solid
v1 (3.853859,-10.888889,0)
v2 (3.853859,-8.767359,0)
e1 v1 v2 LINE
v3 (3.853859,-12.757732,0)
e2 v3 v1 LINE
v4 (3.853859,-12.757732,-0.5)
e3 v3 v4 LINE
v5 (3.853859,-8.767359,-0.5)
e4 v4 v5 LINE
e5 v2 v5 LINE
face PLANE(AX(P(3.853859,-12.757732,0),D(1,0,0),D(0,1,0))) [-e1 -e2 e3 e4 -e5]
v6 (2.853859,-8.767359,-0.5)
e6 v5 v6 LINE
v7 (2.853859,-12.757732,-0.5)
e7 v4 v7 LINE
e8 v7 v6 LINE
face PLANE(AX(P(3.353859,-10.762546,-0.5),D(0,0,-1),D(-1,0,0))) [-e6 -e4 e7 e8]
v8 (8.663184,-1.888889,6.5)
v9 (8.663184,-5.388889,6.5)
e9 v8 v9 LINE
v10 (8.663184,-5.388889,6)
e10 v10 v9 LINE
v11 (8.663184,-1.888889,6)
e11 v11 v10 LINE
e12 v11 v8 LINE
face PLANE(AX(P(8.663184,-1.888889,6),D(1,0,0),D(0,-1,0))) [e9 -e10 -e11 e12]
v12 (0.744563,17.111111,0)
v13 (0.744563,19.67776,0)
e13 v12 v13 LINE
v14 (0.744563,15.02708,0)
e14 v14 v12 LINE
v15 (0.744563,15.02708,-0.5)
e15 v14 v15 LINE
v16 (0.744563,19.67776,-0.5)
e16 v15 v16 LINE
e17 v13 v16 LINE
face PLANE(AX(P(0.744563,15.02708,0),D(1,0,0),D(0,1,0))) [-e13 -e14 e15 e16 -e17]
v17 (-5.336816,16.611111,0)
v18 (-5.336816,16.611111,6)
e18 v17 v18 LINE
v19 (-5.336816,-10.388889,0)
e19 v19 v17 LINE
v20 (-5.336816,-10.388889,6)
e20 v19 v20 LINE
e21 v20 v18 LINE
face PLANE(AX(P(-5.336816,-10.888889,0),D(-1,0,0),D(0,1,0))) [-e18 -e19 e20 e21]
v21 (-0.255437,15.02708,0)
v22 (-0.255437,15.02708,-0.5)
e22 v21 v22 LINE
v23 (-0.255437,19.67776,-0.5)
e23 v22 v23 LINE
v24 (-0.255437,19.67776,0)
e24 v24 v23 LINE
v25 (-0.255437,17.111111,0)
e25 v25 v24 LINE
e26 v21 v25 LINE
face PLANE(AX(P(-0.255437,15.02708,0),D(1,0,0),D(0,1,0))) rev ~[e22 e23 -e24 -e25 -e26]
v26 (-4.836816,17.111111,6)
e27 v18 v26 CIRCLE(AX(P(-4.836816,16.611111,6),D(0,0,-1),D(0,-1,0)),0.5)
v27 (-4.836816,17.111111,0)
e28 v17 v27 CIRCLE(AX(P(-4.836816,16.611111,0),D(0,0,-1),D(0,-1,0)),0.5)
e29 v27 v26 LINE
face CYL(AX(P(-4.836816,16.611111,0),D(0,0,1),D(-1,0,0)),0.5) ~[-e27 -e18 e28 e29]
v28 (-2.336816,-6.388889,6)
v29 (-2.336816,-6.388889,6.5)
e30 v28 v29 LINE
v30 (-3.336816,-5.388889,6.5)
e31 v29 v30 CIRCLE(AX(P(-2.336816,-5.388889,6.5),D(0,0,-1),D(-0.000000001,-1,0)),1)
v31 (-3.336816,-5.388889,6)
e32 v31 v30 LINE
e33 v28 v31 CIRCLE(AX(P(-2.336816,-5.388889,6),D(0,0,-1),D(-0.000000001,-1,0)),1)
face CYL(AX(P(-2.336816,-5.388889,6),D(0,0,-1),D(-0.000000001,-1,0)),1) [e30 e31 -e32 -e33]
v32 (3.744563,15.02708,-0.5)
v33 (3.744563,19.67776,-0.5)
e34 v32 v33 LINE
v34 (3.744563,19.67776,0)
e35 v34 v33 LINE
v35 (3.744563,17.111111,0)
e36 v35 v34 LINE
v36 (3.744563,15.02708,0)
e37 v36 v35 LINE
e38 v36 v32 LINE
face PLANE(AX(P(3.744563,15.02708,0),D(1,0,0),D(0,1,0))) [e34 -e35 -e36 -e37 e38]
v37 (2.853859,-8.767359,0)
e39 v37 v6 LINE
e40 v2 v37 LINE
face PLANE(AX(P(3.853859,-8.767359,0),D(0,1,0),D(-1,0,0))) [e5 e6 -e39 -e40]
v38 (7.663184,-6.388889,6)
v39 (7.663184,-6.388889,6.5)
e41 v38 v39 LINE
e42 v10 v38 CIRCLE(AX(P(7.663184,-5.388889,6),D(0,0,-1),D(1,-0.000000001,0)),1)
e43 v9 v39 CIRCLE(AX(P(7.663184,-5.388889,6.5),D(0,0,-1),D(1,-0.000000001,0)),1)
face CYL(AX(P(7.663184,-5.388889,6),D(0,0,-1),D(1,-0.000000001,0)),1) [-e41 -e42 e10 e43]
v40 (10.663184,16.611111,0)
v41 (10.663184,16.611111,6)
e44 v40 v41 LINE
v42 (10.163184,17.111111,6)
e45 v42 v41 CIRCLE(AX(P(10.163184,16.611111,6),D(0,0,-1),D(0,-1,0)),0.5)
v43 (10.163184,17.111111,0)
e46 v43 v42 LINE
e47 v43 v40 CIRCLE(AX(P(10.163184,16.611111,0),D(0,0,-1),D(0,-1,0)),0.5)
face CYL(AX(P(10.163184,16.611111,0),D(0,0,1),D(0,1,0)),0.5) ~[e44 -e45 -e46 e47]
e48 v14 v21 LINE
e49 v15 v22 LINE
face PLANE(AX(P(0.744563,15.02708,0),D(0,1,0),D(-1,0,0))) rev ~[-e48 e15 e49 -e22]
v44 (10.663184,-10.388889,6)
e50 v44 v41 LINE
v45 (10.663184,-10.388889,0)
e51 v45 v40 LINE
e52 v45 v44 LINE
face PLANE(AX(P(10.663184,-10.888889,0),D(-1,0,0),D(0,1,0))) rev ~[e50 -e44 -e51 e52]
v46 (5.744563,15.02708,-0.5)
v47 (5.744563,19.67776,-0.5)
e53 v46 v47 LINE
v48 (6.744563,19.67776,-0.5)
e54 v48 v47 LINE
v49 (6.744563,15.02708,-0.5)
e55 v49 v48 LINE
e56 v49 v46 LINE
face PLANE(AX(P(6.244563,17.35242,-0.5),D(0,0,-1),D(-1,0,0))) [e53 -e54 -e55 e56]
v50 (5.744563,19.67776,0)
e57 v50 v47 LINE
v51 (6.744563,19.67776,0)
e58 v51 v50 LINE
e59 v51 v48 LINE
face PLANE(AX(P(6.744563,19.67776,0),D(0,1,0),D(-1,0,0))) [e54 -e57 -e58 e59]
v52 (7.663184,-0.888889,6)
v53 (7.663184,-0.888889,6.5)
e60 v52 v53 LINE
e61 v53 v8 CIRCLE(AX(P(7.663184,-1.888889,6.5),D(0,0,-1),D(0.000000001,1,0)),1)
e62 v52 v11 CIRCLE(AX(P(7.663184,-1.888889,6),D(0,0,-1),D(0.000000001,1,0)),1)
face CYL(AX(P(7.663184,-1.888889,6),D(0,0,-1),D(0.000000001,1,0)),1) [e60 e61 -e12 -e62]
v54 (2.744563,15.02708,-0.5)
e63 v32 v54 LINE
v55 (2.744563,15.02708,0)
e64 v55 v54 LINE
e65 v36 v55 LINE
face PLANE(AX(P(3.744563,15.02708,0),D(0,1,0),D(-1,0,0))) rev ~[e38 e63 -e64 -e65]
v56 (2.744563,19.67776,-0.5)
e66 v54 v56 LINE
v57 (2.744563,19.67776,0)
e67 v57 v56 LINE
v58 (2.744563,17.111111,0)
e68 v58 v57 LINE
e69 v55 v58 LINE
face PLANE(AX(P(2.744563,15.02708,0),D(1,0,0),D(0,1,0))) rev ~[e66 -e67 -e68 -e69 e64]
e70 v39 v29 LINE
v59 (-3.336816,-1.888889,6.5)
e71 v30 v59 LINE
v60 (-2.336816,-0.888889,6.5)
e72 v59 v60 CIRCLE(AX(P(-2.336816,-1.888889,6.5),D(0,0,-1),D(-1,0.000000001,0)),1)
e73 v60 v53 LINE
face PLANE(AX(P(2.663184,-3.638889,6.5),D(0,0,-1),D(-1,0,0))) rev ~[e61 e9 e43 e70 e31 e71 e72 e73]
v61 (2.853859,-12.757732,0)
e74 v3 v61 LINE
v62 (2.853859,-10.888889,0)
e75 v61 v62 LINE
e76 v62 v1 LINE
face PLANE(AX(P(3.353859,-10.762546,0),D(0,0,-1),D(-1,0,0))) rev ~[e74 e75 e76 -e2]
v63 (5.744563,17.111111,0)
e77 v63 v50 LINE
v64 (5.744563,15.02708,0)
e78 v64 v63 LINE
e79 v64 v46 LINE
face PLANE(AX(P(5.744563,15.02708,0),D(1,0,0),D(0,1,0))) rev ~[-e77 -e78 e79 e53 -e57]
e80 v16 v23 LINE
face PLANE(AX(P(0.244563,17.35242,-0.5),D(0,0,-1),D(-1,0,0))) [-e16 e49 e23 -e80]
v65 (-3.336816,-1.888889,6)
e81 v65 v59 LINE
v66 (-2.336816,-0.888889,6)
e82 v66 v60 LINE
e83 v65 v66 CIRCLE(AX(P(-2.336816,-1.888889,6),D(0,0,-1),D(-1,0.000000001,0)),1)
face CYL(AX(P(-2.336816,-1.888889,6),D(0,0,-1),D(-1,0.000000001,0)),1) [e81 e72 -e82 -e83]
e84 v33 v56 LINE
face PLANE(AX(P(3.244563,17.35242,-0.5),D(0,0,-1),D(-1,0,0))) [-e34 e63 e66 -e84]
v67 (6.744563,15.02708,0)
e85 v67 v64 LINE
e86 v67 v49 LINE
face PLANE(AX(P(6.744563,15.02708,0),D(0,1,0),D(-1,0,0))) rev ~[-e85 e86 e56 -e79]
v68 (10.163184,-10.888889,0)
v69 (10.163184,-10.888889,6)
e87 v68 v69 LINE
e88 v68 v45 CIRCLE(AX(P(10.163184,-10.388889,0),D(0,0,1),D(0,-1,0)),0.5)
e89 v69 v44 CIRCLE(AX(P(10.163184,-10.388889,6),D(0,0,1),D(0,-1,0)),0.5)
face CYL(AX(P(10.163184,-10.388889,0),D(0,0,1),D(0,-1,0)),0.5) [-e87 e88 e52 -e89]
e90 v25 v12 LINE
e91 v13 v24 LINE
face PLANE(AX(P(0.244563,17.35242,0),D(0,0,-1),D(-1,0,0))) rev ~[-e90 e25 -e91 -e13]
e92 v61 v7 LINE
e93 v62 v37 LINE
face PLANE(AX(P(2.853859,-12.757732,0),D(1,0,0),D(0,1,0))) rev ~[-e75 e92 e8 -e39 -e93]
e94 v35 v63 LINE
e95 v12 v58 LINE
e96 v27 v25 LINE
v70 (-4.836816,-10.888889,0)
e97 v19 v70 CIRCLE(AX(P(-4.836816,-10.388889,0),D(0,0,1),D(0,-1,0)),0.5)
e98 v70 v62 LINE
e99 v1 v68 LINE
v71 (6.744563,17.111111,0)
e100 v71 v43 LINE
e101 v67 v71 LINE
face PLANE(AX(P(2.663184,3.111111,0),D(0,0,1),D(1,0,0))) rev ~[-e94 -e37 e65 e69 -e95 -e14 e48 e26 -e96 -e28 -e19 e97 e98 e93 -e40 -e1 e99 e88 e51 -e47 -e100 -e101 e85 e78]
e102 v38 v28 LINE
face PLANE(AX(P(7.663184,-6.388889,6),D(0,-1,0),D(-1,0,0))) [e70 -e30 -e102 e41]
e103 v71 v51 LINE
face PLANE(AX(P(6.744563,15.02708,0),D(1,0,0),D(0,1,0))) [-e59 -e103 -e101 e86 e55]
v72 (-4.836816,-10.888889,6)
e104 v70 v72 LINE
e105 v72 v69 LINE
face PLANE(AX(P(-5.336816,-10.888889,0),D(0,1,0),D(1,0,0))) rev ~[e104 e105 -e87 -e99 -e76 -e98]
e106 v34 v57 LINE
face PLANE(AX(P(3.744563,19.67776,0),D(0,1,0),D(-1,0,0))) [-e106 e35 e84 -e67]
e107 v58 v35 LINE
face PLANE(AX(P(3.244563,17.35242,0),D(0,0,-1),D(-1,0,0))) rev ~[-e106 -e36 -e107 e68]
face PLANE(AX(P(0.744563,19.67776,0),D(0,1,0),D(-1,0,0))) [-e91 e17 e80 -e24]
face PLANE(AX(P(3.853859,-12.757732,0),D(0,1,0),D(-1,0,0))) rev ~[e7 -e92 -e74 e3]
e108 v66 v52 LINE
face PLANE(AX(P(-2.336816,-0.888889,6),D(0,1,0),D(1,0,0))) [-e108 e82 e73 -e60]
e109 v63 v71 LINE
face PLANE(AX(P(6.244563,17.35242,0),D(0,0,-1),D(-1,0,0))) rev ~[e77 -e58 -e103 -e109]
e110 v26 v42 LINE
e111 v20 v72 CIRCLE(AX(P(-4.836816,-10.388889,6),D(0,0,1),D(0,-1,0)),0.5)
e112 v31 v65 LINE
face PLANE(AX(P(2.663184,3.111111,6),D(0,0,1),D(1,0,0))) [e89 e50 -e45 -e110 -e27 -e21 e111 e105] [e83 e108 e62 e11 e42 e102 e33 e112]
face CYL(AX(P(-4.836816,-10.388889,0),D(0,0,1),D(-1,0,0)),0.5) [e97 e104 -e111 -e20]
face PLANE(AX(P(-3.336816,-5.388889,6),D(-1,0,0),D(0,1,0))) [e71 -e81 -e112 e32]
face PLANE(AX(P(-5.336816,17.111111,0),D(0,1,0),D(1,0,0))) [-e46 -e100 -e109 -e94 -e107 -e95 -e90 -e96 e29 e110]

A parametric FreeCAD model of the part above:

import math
import FreeCAD as App
import Part
import Sketcher
from FreeCAD import Vector


def edges_at(feature, points):
    """Names of the edges that pass closest to the given points."""
    edges = feature.Shape.Edges
    near = lambda p: min(range(len(edges)), key=lambda i: edges[i].distToShape(Part.Vertex(*p))[0])
    return sorted({f"Edge{near(p) + 1}" for p in points})

doc = App.newDocument("Part")
body = doc.addObject("PartDesign::Body", "Body")

sketch1 = doc.addObject("Sketcher::SketchObject", "Sketch")
body.addObject(sketch1)
sketch1.AttachmentSupport = (doc.XY_Plane, [""])
sketch1.MapMode = "FlatFace"
sketch1.addGeometry(Part.LineSegment(Vector(-5.336816, 17.111111, 0), Vector(-5.336816, -10.888889, 0)), False)
sketch1.addGeometry(Part.LineSegment(Vector(-5.336816, -10.888889, 0), Vector(10.663184, -10.888889, 0)), False)
sketch1.addGeometry(Part.LineSegment(Vector(10.663184, -10.888889, 0), Vector(10.663184, 17.111111, 0)), False)
sketch1.addGeometry(Part.LineSegment(Vector(10.663184, 17.111111, 0), Vector(-5.336816, 17.111111, 0)), False)
sketch1.addConstraint(Sketcher.Constraint("Coincident", 0, 2, 1, 1))
sketch1.addConstraint(Sketcher.Constraint("Coincident", 1, 2, 2, 1))
sketch1.addConstraint(Sketcher.Constraint("Coincident", 2, 2, 3, 1))
sketch1.addConstraint(Sketcher.Constraint("Coincident", 3, 2, 0, 1))
sketch1.addConstraint(Sketcher.Constraint("Vertical", 0))
sketch1.addConstraint(Sketcher.Constraint("Horizontal", 1))
sketch1.addConstraint(Sketcher.Constraint("Vertical", 2))
sketch1.addConstraint(Sketcher.Constraint("Horizontal", 3))
sketch1.addConstraint(Sketcher.Constraint("DistanceX", 1, 1, 1, 2, 16.0))
sketch1.addConstraint(Sketcher.Constraint("DistanceY", 0, 2, 0, 1, 28.0))
sketch1.addConstraint(Sketcher.Constraint("DistanceY", 0, 2, -1, 1, 10.888889))
sketch1.addConstraint(Sketcher.Constraint("DistanceX", 0, 2, -1, 1, 5.336816))
pad1 = doc.addObject("PartDesign::Pad", "Pad")
body.addObject(pad1)
pad1.Profile = sketch1
pad1.Length = 6

sketch2 = doc.addObject("Sketcher::SketchObject", "Sketch001")
body.addObject(sketch2)
sketch2.AttachmentSupport = (doc.XY_Plane, [""])
sketch2.MapMode = "FlatFace"
sketch2.AttachmentOffset = App.Placement(Vector(0, 0, 6), App.Rotation())
sketch2.addGeometry(Part.LineSegment(Vector(7.663184, -0.888889, 0), Vector(-2.336816, -0.888889, 0)), False)
sketch2.addGeometry(Part.ArcOfCircle(Part.Circle(Vector(-2.336816, -1.888889, 0), Vector(0, 0, 1), 1), math.radians(90), math.radians(180)), False)
sketch2.addGeometry(Part.LineSegment(Vector(-3.336816, -1.888889, 0), Vector(-3.336816, -5.388889, 0)), False)
sketch2.addGeometry(Part.ArcOfCircle(Part.Circle(Vector(-2.336816, -5.388889, 0), Vector(0, 0, 1), 1), math.radians(-180), math.radians(-90)), False)
sketch2.addGeometry(Part.LineSegment(Vector(-2.336816, -6.388889, 0), Vector(7.663184, -6.388889, 0)), False)
sketch2.addGeometry(Part.ArcOfCircle(Part.Circle(Vector(7.663184, -5.388889, 0), Vector(0, 0, 1), 1), math.radians(-90), math.radians(0)), False)
sketch2.addGeometry(Part.LineSegment(Vector(8.663184, -5.388889, 0), Vector(8.663184, -1.888889, 0)), False)
sketch2.addGeometry(Part.ArcOfCircle(Part.Circle(Vector(7.663184, -1.888889, 0), Vector(0, 0, 1), 1), math.radians(0), math.radians(90)), False)
sketch2.addConstraint(Sketcher.Constraint("Tangent", 0, 2, 1, 1))
sketch2.addConstraint(Sketcher.Constraint("Tangent", 1, 2, 2, 1))
sketch2.addConstraint(Sketcher.Constraint("Tangent", 2, 2, 3, 1))
sketch2.addConstraint(Sketcher.Constraint("Tangent", 3, 2, 4, 1))
sketch2.addConstraint(Sketcher.Constraint("Tangent", 4, 2, 5, 1))
sketch2.addConstraint(Sketcher.Constraint("Tangent", 5, 2, 6, 1))
sketch2.addConstraint(Sketcher.Constraint("Tangent", 6, 2, 7, 1))
sketch2.addConstraint(Sketcher.Constraint("Tangent", 7, 2, 0, 1))
sketch2.addConstraint(Sketcher.Constraint("Horizontal", 0))
sketch2.addConstraint(Sketcher.Constraint("Vertical", 2))
sketch2.addConstraint(Sketcher.Constraint("Horizontal", 4))
sketch2.addConstraint(Sketcher.Constraint("Vertical", 6))
sketch2.addConstraint(Sketcher.Constraint("Equal", 1, 3))
sketch2.addConstraint(Sketcher.Constraint("Equal", 3, 5))
sketch2.addConstraint(Sketcher.Constraint("Equal", 5, 7))
sketch2.addConstraint(Sketcher.Constraint("Radius", 1, 1.0))
sketch2.addConstraint(Sketcher.Constraint("DistanceX", 0, 2, 0, 1, 10.0))
sketch2.addConstraint(Sketcher.Constraint("DistanceY", 2, 2, 2, 1, 3.5))
sketch2.addConstraint(Sketcher.Constraint("DistanceY", 1, 3, -1, 1, 1.888889))
sketch2.addConstraint(Sketcher.Constraint("DistanceX", 1, 3, -1, 1, 2.336816))
pad2 = doc.addObject("PartDesign::Pad", "Pad001")
body.addObject(pad2)
pad2.Profile = sketch2
pad2.Length = 0.5
doc.recompute()

fillet = doc.addObject("PartDesign::Fillet", "Fillet")
body.addObject(fillet)
fillet.Base = (pad2, edges_at(pad2, [
    (-5.337, 17.111, 3),
    (10.663, 17.111, 3),
    (10.663, -10.889, 3),
    (-5.337, -10.889, 3),
]))
fillet.Radius = 0.5

sketch3 = doc.addObject("Sketcher::SketchObject", "Sketch002")
body.addObject(sketch3)
sketch3.AttachmentSupport = (doc.XY_Plane, [""])
sketch3.MapMode = "FlatFace"
sketch3.addGeometry(Part.LineSegment(Vector(0.744563, 19.67776, 0), Vector(0.744563, 15.02708, 0)), False)
sketch3.addGeometry(Part.LineSegment(Vector(0.744563, 15.02708, 0), Vector(-0.255437, 15.02708, 0)), False)
sketch3.addGeometry(Part.LineSegment(Vector(-0.255437, 15.02708, 0), Vector(-0.255437, 19.67776, 0)), False)
sketch3.addGeometry(Part.LineSegment(Vector(-0.255437, 19.67776, 0), Vector(0.744563, 19.67776, 0)), False)
sketch3.addGeometry(Part.LineSegment(Vector(3.744563, 19.67776, 0), Vector(3.744563, 15.02708, 0)), False)
sketch3.addGeometry(Part.LineSegment(Vector(3.744563, 15.02708, 0), Vector(2.744563, 15.02708, 0)), False)
sketch3.addGeometry(Part.LineSegment(Vector(2.744563, 15.02708, 0), Vector(2.744563, 19.67776, 0)), False)
sketch3.addGeometry(Part.LineSegment(Vector(2.744563, 19.67776, 0), Vector(3.744563, 19.67776, 0)), False)
sketch3.addGeometry(Part.LineSegment(Vector(6.744563, 19.67776, 0), Vector(6.744563, 15.02708, 0)), False)
sketch3.addGeometry(Part.LineSegment(Vector(6.744563, 15.02708, 0), Vector(5.744563, 15.02708, 0)), False)
sketch3.addGeometry(Part.LineSegment(Vector(5.744563, 15.02708, 0), Vector(5.744563, 19.67776, 0)), False)
sketch3.addGeometry(Part.LineSegment(Vector(5.744563, 19.67776, 0), Vector(6.744563, 19.67776, 0)), False)
sketch3.addConstraint(Sketcher.Constraint("Coincident", 0, 2, 1, 1))
sketch3.addConstraint(Sketcher.Constraint("Coincident", 1, 2, 2, 1))
sketch3.addConstraint(Sketcher.Constraint("Coincident", 2, 2, 3, 1))
sketch3.addConstraint(Sketcher.Constraint("Coincident", 3, 2, 0, 1))
sketch3.addConstraint(Sketcher.Constraint("Coincident", 4, 2, 5, 1))
sketch3.addConstraint(Sketcher.Constraint("Coincident", 5, 2, 6, 1))
sketch3.addConstraint(Sketcher.Constraint("Coincident", 6, 2, 7, 1))
sketch3.addConstraint(Sketcher.Constraint("Coincident", 7, 2, 4, 1))
sketch3.addConstraint(Sketcher.Constraint("Coincident", 8, 2, 9, 1))
sketch3.addConstraint(Sketcher.Constraint("Coincident", 9, 2, 10, 1))
sketch3.addConstraint(Sketcher.Constraint("Coincident", 10, 2, 11, 1))
sketch3.addConstraint(Sketcher.Constraint("Coincident", 11, 2, 8, 1))
sketch3.addConstraint(Sketcher.Constraint("Vertical", 0))
sketch3.addConstraint(Sketcher.Constraint("Horizontal", 1))
sketch3.addConstraint(Sketcher.Constraint("Vertical", 2))
sketch3.addConstraint(Sketcher.Constraint("Horizontal", 3))
sketch3.addConstraint(Sketcher.Constraint("Vertical", 4))
sketch3.addConstraint(Sketcher.Constraint("Horizontal", 5))
sketch3.addConstraint(Sketcher.Constraint("Vertical", 6))
sketch3.addConstraint(Sketcher.Constraint("Horizontal", 7))
sketch3.addConstraint(Sketcher.Constraint("Vertical", 8))
sketch3.addConstraint(Sketcher.Constraint("Horizontal", 9))
sketch3.addConstraint(Sketcher.Constraint("Vertical", 10))
sketch3.addConstraint(Sketcher.Constraint("Horizontal", 11))
sketch3.addConstraint(Sketcher.Constraint("Horizontal", 1, 2, 4, 2))
sketch3.addConstraint(Sketcher.Constraint("Horizontal", 3, 2, 6, 2))
sketch3.addConstraint(Sketcher.Constraint("Horizontal", 5, 2, 8, 2))
sketch3.addConstraint(Sketcher.Constraint("Horizontal", 7, 2, 10, 2))
sketch3.addConstraint(Sketcher.Constraint("Equal", 3, 5))
sketch3.addConstraint(Sketcher.Constraint("Equal", 7, 9))
sketch3.addConstraint(Sketcher.Constraint("DistanceX", 1, 2, 1, 1, 1.0))
sketch3.addConstraint(Sketcher.Constraint("DistanceX", 0, 2, 4, 2, 3.0))
sketch3.addConstraint(Sketcher.Constraint("DistanceX", 4, 2, 8, 2, 3.0))
sketch3.addConstraint(Sketcher.Constraint("DistanceY", 0, 2, 0, 1, 4.650681))
sketch3.addConstraint(Sketcher.Constraint("DistanceY", -1, 1, 0, 2, 15.02708))
sketch3.addConstraint(Sketcher.Constraint("DistanceX", -1, 1, 0, 2, 0.744563))
pad3 = doc.addObject("PartDesign::Pad", "Pad002")
body.addObject(pad3)
pad3.Profile = sketch3
pad3.Length = 0.5
pad3.Reversed = True

sketch4 = doc.addObject("Sketcher::SketchObject", "Sketch003")
body.addObject(sketch4)
sketch4.AttachmentSupport = (doc.XY_Plane, [""])
sketch4.MapMode = "FlatFace"
sketch4.addGeometry(Part.LineSegment(Vector(3.853859, -8.767359, 0), Vector(3.853859, -12.757732, 0)), False)
sketch4.addGeometry(Part.LineSegment(Vector(3.853859, -12.757732, 0), Vector(2.853859, -12.757732, 0)), False)
sketch4.addGeometry(Part.LineSegment(Vector(2.853859, -12.757732, 0), Vector(2.853859, -8.767359, 0)), False)
sketch4.addGeometry(Part.LineSegment(Vector(2.853859, -8.767359, 0), Vector(3.853859, -8.767359, 0)), False)
sketch4.addConstraint(Sketcher.Constraint("Coincident", 0, 2, 1, 1))
sketch4.addConstraint(Sketcher.Constraint("Coincident", 1, 2, 2, 1))
sketch4.addConstraint(Sketcher.Constraint("Coincident", 2, 2, 3, 1))
sketch4.addConstraint(Sketcher.Constraint("Coincident", 3, 2, 0, 1))
sketch4.addConstraint(Sketcher.Constraint("Vertical", 0))
sketch4.addConstraint(Sketcher.Constraint("Horizontal", 1))
sketch4.addConstraint(Sketcher.Constraint("Vertical", 2))
sketch4.addConstraint(Sketcher.Constraint("Horizontal", 3))
sketch4.addConstraint(Sketcher.Constraint("DistanceX", 1, 2, 1, 1, 1.0))
sketch4.addConstraint(Sketcher.Constraint("DistanceY", 0, 2, 0, 1, 3.990373))
sketch4.addConstraint(Sketcher.Constraint("DistanceX", -1, 1, 0, 2, 3.853859))
sketch4.addConstraint(Sketcher.Constraint("DistanceY", 2, 2, -1, 1, 8.767359))
pad4 = doc.addObject("PartDesign::Pad", "Pad003")
body.addObject(pad4)
pad4.Profile = sketch4
pad4.Length = 0.5
pad4.Reversed = True

doc.recompute()
